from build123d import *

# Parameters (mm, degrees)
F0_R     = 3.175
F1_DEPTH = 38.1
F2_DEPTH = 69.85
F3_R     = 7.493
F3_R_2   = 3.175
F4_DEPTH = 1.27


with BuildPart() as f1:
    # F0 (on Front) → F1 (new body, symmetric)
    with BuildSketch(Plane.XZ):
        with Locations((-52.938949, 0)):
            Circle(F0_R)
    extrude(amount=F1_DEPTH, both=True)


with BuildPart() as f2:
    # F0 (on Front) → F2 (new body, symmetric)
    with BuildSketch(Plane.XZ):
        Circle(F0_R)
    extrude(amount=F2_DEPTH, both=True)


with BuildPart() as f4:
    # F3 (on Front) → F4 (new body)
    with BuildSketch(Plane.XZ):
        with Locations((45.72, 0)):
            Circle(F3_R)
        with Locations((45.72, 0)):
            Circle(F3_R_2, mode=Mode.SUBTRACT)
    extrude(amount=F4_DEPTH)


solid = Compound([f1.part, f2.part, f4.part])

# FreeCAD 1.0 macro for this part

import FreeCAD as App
import Part
import Sketcher
Q = App.Units.Quantity

doc = App.newDocument("Part")
body = doc.addObject("PartDesign::Body", "Body")

sketch1 = body.newObject("Sketcher::SketchObject", "Sketch")
sketch1.AttachmentSupport = (doc.getObject("XZ_Plane"), [""])
sketch1.MapMode = "FlatFace"
sketch1.addGeometry(Part.Circle(App.Vector(-52.9, 0, 0), App.Vector(0, 0, 1), 3.2), False)
sketch1.addConstraint(Sketcher.Constraint("PointOnObject", 0, 3, -1))
sketch1.addConstraint(Sketcher.Constraint("Diameter", 0, Q("0.25 in")))
sketch1.addConstraint(Sketcher.Constraint("DistanceX", 0, 3, -1, 1, Q("52.938949 mm")))
pad1 = body.newObject("PartDesign::Pad", "Pad")
pad1.Profile = sketch1
pad1.Length = Q("3 in")
pad1.Midplane = True
body2 = doc.addObject("PartDesign::Body", "Body001")

sketch2 = body2.newObject("Sketcher::SketchObject", "Sketch001")
sketch2.AttachmentSupport = (doc.getObject("XZ_Plane001"), [""])
sketch2.MapMode = "FlatFace"
sketch2.addGeometry(Part.Circle(App.Vector(0, 0, 0), App.Vector(0, 0, 1), 3.2), False)
sketch2.addConstraint(Sketcher.Constraint("Coincident", 0, 3, -1, 1))
sketch2.addConstraint(Sketcher.Constraint("Diameter", 0, Q("0.25 in")))
pad2 = body2.newObject("PartDesign::Pad", "Pad001")
pad2.Profile = sketch2
pad2.Length = Q("5.5 in")
pad2.Midplane = True
body3 = doc.addObject("PartDesign::Body", "Body002")

sketch3 = body3.newObject("Sketcher::SketchObject", "Sketch002")
sketch3.AttachmentSupport = (doc.getObject("XZ_Plane002"), [""])
sketch3.MapMode = "FlatFace"
sketch3.addGeometry(Part.Circle(App.Vector(45.7, 0, 0), App.Vector(0, 0, 1), 7.5), False)
sketch3.addGeometry(Part.Circle(App.Vector(45.7, 0, 0), App.Vector(0, 0, 1), 3.2), False)
sketch3.addConstraint(Sketcher.Constraint("Coincident", 1, 3, 0, 3))
sketch3.addConstraint(Sketcher.Constraint("PointOnObject", 0, 3, -1))
sketch3.addConstraint(Sketcher.Constraint("Diameter", 0, Q("0.59 in")))
sketch3.addConstraint(Sketcher.Constraint("Diameter", 1, Q("0.25 in")))
sketch3.addConstraint(Sketcher.Constraint("DistanceX", -1, 1, 0, 3, Q("1.8 in")))
pad3 = body3.newObject("PartDesign::Pad", "Pad002")
pad3.Profile = sketch3
pad3.Length = Q("0.05 in")

doc.recompute()
